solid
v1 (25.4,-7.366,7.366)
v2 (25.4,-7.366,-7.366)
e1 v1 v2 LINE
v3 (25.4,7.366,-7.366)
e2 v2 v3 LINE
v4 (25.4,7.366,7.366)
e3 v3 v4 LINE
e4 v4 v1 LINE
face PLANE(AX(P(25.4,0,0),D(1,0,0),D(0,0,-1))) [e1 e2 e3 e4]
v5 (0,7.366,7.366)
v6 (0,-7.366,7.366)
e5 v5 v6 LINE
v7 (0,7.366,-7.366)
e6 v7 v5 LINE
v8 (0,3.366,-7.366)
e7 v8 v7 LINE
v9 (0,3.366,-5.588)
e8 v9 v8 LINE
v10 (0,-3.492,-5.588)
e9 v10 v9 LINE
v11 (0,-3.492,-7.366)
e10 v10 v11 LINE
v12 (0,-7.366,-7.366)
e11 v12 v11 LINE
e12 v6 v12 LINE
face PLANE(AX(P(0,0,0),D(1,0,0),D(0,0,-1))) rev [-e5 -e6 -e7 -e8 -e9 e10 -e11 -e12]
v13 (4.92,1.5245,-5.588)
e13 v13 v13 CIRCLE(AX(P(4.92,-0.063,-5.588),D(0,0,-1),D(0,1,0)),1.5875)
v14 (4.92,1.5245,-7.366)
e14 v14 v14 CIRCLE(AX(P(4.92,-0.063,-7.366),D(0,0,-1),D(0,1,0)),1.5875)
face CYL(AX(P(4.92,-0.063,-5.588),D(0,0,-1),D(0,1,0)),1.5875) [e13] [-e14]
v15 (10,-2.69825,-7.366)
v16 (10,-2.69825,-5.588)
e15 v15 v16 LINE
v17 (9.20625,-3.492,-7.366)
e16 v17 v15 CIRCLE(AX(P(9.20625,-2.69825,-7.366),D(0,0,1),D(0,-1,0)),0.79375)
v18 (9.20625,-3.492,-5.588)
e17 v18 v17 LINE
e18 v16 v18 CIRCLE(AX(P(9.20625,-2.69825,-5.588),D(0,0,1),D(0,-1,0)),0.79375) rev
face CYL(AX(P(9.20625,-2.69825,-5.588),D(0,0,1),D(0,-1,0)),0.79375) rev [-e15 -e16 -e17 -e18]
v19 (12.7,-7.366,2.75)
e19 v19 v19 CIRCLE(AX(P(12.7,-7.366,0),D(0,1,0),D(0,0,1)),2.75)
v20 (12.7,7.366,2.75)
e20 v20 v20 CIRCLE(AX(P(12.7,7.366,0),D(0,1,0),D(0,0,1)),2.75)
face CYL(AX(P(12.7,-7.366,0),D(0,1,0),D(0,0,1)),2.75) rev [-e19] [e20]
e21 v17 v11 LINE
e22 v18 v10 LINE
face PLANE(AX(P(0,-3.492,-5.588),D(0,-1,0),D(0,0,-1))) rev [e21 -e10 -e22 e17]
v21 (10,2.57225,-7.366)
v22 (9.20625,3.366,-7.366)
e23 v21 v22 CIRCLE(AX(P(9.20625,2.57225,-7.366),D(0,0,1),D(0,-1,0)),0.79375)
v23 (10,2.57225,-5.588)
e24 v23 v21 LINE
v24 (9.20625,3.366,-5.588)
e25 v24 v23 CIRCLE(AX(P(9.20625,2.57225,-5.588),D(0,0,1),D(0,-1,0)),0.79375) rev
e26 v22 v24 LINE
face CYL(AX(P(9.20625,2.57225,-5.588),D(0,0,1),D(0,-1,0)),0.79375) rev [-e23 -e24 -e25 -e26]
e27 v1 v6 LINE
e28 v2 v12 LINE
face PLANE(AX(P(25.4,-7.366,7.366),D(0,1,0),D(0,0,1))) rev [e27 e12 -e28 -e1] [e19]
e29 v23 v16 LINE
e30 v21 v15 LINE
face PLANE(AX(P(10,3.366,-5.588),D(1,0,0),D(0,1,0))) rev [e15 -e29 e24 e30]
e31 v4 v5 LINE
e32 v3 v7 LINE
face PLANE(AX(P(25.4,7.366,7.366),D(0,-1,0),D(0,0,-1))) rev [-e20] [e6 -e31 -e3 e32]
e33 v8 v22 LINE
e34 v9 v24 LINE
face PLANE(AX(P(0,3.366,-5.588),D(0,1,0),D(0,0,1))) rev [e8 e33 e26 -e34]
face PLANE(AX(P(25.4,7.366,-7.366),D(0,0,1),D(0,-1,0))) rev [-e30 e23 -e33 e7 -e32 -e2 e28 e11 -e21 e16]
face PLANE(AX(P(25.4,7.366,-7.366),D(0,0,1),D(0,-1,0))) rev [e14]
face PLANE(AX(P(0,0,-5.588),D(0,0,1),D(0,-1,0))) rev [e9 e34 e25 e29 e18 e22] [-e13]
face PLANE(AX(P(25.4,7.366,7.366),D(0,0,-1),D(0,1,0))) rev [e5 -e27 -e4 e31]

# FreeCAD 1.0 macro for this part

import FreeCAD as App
import Part
import Sketcher
Q = App.Units.Quantity


def edges_at(feature, points):
    """Names of the edges that pass closest to the given points."""
    edges = feature.Shape.Edges
    near = lambda p: min(range(len(edges)), key=lambda i: edges[i].distToShape(Part.Vertex(*p))[0])
    return sorted({f"Edge{near(p) + 1}" for p in points})

doc = App.newDocument("Part")
body = doc.addObject("PartDesign::Body", "Body")

# Sketch on YZ plane
sketch1 = body.newObject("Sketcher::SketchObject", "Sketch")
sketch1.AttachmentSupport = (doc.getObject("YZ_Plane"), [""])
sketch1.MapMode = "FlatFace"
sketch1.addGeometry(Part.LineSegment(App.Vector(7, 7, 0), App.Vector(-7, 7, 0)), False)
sketch1.addGeometry(Part.LineSegment(App.Vector(-7, 7, 0), App.Vector(-7, -7, 0)), False)
sketch1.addGeometry(Part.LineSegment(App.Vector(-7, -7, 0), App.Vector(7, -7, 0)), False)
sketch1.addGeometry(Part.LineSegment(App.Vector(7, -7, 0), App.Vector(7, 7, 0)), False)
sketch1.addConstraint(Sketcher.Constraint("Coincident", 0, 2, 1, 1))
sketch1.addConstraint(Sketcher.Constraint("Coincident", 1, 2, 2, 1))
sketch1.addConstraint(Sketcher.Constraint("Coincident", 2, 2, 3, 1))
sketch1.addConstraint(Sketcher.Constraint("Coincident", 3, 2, 0, 1))
sketch1.addConstraint(Sketcher.Constraint("Horizontal", 0))
sketch1.addConstraint(Sketcher.Constraint("Vertical", 1))
sketch1.addConstraint(Sketcher.Constraint("Horizontal", 2))
sketch1.addConstraint(Sketcher.Constraint("Vertical", 3))
sketch1.addConstraint(Sketcher.Constraint("Symmetric", 0, 2, 2, 2, -1, 1))
sketch1.addConstraint(Sketcher.Constraint("Equal", 2, 1))
sketch1.addConstraint(Sketcher.Constraint("DistanceX", 0, 2, 0, 1, Q("0.58 in")))
pad1 = body.newObject("PartDesign::Pad", "Pad")
pad1.Profile = sketch1
pad1.Length = Q("1 in")

# Sketch on XZ plane
sketch2 = body.newObject("Sketcher::SketchObject", "Sketch001")
sketch2.AttachmentSupport = (doc.getObject("XZ_Plane"), [""])
sketch2.MapMode = "FlatFace"
sketch2.AttachmentOffset = App.Placement(App.Vector(0, 0, -0.29 * 25.4), App.Rotation())
sketch2.addGeometry(Part.Circle(App.Vector(12.7, 0, 0), App.Vector(0, 0, 1), 2.8), False)
sketch2.addConstraint(Sketcher.Constraint("PointOnObject", 0, 3, -1))
sketch2.addConstraint(Sketcher.Constraint("DistanceX", -1, 1, 0, 3, Q("0.5 in")))
sketch2.addConstraint(Sketcher.Constraint("Diameter", 0, 5.5))
pocket1 = body.newObject("PartDesign::Pocket", "Pocket")
pocket1.Profile = sketch2
pocket1.Type = "ThroughAll"
pocket1.Reversed = True

# Sketch on XY plane
sketch3 = body.newObject("Sketcher::SketchObject", "Sketch002")
sketch3.AttachmentSupport = (doc.getObject("XY_Plane"), [""])
sketch3.MapMode = "FlatFace"
sketch3.AttachmentOffset = App.Placement(App.Vector(0, 0, -0.29 * 25.4), App.Rotation())
sketch3.addGeometry(Part.LineSegment(App.Vector(10, 3.4, 0), App.Vector(10, -3.5, 0)), False)
sketch3.addGeometry(Part.LineSegment(App.Vector(10, -3.5, 0), App.Vector(0, -3.5, 0)), False)
sketch3.addGeometry(Part.LineSegment(App.Vector(0, -3.5, 0), App.Vector(0, 3.4, 0)), False)
sketch3.addGeometry(Part.LineSegment(App.Vector(0, 3.4, 0), App.Vector(10, 3.4, 0)), False)
sketch3.addGeometry(Part.Circle(App.Vector(4.9, -0.1, 0), App.Vector(0, 0, 1), 1.6), False)
sketch3.addConstraint(Sketcher.Constraint("Coincident", 0, 2, 1, 1))
sketch3.addConstraint(Sketcher.Constraint("Coincident", 1, 2, 2, 1))
sketch3.addConstraint(Sketcher.Constraint("Coincident", 2, 2, 3, 1))
sketch3.addConstraint(Sketcher.Constraint("Coincident", 3, 2, 0, 1))
sketch3.addConstraint(Sketcher.Constraint("Vertical", 0))
sketch3.addConstraint(Sketcher.Constraint("Horizontal", 1))
sketch3.addConstraint(Sketcher.Constraint("Vertical", 2))
sketch3.addConstraint(Sketcher.Constraint("Horizontal", 3))
sketch3.addConstraint(Sketcher.Constraint("PointOnObject", 1, 2, -2))
sketch3.addConstraint(Sketcher.Constraint("Diameter", 4, Q("0.125 in")))
sketch3.addConstraint(Sketcher.Constraint("DistanceY", 0, 2, 0, 1, Q("0.27 in")))
sketch3.addConstraint(Sketcher.Constraint("DistanceX", 4, 3, 0, 2, Q("0.2 in")))
sketch3.addConstraint(Sketcher.Constraint("DistanceY", 0, 2, 4, 3, Q("0.135 in")))
sketch3.addConstraint(Sketcher.Constraint("DistanceX", 1, 2, 1, 1, 10.0))
sketch3.addConstraint(Sketcher.Constraint("DistanceY", 4, 3, -1, 1, 0.063))
pocket2 = body.newObject("PartDesign::Pocket", "Pocket001")
pocket2.Profile = sketch3
pocket2.Length = Q("0.07 in")
pocket2.Reversed = True
doc.recompute()

fillet = body.newObject("PartDesign::Fillet", "Fillet")
fillet.Base = (pocket2, edges_at(pocket2, [(10, -3.492, -6.477), (10, 3.366, -6.477)]))
fillet.Radius = Q("0.03125 in")

doc.recompute()
